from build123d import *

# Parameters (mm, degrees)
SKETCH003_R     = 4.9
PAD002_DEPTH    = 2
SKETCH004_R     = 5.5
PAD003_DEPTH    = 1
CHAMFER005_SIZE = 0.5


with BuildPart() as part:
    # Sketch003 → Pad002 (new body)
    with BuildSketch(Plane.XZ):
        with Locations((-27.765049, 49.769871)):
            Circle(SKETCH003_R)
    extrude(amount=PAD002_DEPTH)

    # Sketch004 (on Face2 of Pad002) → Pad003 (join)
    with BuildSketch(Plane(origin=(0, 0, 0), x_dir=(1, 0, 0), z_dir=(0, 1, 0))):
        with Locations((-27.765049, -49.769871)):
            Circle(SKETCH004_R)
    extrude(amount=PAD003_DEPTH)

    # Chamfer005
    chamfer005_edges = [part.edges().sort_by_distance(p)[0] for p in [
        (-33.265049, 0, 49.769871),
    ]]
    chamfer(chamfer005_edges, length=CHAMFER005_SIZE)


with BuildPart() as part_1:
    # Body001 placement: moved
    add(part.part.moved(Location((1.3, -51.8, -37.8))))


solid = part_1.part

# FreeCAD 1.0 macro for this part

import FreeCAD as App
import Part
import Sketcher

V = App.Vector
Q = App.Units.Quantity


def edges_at(feature, points):
    """Names of the edges that pass closest to the given points."""
    edges = feature.Shape.Edges
    near = lambda p: min(range(len(edges)), key=lambda i: edges[i].distToShape(Part.Vertex(*p))[0])
    return sorted({f"Edge{near(p) + 1}" for p in points})

doc = App.newDocument("Part")
body = doc.addObject("PartDesign::Body", "Body")

sketch1 = body.newObject("Sketcher::SketchObject", "Sketch")
sketch1.AttachmentSupport = (doc.getObject("XZ_Plane"), [""])
sketch1.MapMode = "FlatFace"
sketch1.addGeometry(Part.Circle(V(-27.8, 49.8, 0), V(0, 0, 1), 4.9), False)
sketch1.addConstraint([
    Sketcher.Constraint("Diameter", 0, Q("9.8 mm")),
    Sketcher.Constraint("DistanceX", 0, 3, -1, 1, Q("27.765049 mm")),
    Sketcher.Constraint("DistanceY", -1, 1, 0, 3, Q("49.769871 mm")),
])
pad1 = body.newObject("PartDesign::Pad", "Pad")
pad1.Profile = sketch1
pad1.Length = 2

sketch2 = body.newObject("Sketcher::SketchObject", "Sketch001")
sketch2.AttachmentSupport = (doc.getObject("XZ_Plane"), [""])
sketch2.MapMode = "FlatFace"
sketch2.addGeometry(Part.Circle(V(-28, 50, 0), V(0, 0, 1), 6), False)
sketch2.addConstraint([
    Sketcher.Constraint("Diameter", 0, Q("11 mm")),
    Sketcher.Constraint("DistanceX", 0, 3, -1, 1, Q("27.765049 mm")),
    Sketcher.Constraint("DistanceY", -1, 1, 0, 3, Q("49.769871 mm")),
])
pad2 = body.newObject("PartDesign::Pad", "Pad001")
pad2.Profile = sketch2
pad2.Length = 1
pad2.Reversed = True
doc.recompute()

chamfer = body.newObject("PartDesign::Chamfer", "Chamfer")
chamfer.Base = (pad2, edges_at(pad2, [(-33.265, 0, 49.77)]))
chamfer.Size = 0.5
body2 = doc.addObject("PartDesign::Body", "Body001")
doc.recompute()

body.Placement = App.Placement(V(1.3, -51.8, -37.8), App.Rotation(V(0, 0, 1), 0))
boolean = body2.newObject("PartDesign::Boolean", "Boolean")
boolean.Type = "Fuse"
boolean.addObjects([body])

doc.recompute()
